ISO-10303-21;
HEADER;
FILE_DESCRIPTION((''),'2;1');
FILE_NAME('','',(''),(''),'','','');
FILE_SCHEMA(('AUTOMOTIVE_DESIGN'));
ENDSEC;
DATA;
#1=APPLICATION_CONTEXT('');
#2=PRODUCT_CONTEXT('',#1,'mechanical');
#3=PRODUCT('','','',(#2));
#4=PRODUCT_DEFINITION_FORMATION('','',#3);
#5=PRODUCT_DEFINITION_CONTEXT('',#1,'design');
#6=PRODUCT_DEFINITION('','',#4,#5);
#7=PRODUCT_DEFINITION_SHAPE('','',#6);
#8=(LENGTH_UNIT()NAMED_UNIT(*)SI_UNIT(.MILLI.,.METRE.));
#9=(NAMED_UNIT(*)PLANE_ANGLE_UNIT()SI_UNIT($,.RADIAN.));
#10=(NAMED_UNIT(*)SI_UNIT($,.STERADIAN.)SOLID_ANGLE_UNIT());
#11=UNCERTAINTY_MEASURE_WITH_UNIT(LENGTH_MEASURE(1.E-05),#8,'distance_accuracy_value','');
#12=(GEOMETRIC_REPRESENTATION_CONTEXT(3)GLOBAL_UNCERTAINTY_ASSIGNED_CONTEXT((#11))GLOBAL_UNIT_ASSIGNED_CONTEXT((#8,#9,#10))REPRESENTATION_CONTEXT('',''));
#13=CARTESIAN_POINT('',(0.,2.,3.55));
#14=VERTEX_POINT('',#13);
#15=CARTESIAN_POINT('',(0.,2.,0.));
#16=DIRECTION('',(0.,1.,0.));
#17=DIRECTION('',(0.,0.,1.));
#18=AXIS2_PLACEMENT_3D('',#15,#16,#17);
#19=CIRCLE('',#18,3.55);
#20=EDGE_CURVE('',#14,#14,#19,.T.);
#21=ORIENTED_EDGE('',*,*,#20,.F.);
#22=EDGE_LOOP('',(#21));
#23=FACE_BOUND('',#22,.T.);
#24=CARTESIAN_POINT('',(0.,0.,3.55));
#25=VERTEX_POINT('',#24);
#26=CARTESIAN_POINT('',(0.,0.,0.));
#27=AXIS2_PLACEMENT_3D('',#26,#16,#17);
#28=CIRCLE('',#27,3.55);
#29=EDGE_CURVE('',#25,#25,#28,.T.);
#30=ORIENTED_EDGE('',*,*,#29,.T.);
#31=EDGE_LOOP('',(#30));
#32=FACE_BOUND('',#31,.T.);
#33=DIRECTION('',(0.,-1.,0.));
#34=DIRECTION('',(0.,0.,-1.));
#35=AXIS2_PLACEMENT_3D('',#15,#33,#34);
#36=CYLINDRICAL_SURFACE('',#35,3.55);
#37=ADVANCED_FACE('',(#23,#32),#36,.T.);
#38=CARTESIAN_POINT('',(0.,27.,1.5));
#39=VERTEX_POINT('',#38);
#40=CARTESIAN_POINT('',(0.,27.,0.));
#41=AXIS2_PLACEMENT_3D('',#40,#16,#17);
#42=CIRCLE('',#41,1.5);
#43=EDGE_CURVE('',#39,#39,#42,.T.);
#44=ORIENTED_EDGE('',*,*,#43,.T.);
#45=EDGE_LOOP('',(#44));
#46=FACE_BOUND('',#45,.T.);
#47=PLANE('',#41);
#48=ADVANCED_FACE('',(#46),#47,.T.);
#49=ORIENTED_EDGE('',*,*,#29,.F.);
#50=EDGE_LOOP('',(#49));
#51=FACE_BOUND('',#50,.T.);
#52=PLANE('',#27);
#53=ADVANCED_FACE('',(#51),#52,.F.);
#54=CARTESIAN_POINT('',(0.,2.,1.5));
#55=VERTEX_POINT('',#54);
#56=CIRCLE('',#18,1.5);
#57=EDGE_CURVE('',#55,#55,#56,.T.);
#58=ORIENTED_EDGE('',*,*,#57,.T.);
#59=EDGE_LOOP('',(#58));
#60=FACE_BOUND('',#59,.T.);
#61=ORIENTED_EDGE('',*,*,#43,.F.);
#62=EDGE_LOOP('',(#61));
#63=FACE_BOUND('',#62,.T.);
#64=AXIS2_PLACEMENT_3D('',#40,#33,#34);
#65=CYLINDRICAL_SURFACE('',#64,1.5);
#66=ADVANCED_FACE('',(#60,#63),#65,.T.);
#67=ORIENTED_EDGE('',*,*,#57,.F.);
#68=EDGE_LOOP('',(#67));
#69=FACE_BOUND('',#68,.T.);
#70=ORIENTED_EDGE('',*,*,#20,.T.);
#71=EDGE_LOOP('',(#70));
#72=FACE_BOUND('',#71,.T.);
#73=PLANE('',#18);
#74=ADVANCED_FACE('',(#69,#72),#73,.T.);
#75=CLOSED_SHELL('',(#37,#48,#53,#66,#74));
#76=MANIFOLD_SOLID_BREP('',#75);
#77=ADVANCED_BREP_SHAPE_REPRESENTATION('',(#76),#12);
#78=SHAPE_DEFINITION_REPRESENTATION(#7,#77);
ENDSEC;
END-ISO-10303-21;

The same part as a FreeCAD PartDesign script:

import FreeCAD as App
import Part
import Sketcher

V = App.Vector

doc = App.newDocument("Part")
params = doc.addObject("Spreadsheet::Sheet", "Params")
for row, (alias, value) in enumerate([
    ("sketch1_diameter", "7.1 mm"),
    ("pad1_length", "2 mm"),
    ("sketch2_diameter", "3 mm"),
    ("pad2_length", "25 mm"),
], start=1):
    params.set(f"A{row}", alias)
    params.set(f"B{row}", "=" + value)
    params.setAlias(f"B{row}", alias)

body = doc.addObject("PartDesign::Body", "Body")

sketch1 = body.newObject("Sketcher::SketchObject", "Sketch")
sketch1.AttachmentSupport = (doc.getObject("XZ_Plane"), [""])
sketch1.MapMode = "FlatFace"
sketch1.addGeometry(Part.Circle(V(0, 0, 0), V(0, 0, 1), 3.5), False)
sketch1.addConstraint([
    Sketcher.Constraint("Coincident", 0, 3, -1, 1),
    Sketcher.Constraint("Diameter", 0, 7.1),
])
sketch1.setExpression("Constraints[1]", "Params.sketch1_diameter")
pad1 = body.newObject("PartDesign::Pad", "Pad")
pad1.Profile = sketch1
pad1.setExpression("Length", "Params.pad1_length")
pad1.Reversed = True

sketch2 = body.newObject("Sketcher::SketchObject", "Sketch001")
sketch2.AttachmentSupport = (doc.getObject("XZ_Plane"), [""])
sketch2.MapMode = "FlatFace"
sketch2.AttachmentOffset = App.Placement(V(0, 0, -2), App.Rotation())
sketch2.addGeometry(Part.Circle(V(0, 0, 0), V(0, 0, 1), 1.5), False)
sketch2.addConstraint([
    Sketcher.Constraint("Coincident", 0, 3, -1, 1),
    Sketcher.Constraint("Diameter", 0, 3.0),
])
sketch2.setExpression("Constraints[1]", "Params.sketch2_diameter")
pad2 = body.newObject("PartDesign::Pad", "Pad001")
pad2.Profile = sketch2
pad2.setExpression("Length", "Params.pad2_length")
pad2.Reversed = True

doc.recompute()
